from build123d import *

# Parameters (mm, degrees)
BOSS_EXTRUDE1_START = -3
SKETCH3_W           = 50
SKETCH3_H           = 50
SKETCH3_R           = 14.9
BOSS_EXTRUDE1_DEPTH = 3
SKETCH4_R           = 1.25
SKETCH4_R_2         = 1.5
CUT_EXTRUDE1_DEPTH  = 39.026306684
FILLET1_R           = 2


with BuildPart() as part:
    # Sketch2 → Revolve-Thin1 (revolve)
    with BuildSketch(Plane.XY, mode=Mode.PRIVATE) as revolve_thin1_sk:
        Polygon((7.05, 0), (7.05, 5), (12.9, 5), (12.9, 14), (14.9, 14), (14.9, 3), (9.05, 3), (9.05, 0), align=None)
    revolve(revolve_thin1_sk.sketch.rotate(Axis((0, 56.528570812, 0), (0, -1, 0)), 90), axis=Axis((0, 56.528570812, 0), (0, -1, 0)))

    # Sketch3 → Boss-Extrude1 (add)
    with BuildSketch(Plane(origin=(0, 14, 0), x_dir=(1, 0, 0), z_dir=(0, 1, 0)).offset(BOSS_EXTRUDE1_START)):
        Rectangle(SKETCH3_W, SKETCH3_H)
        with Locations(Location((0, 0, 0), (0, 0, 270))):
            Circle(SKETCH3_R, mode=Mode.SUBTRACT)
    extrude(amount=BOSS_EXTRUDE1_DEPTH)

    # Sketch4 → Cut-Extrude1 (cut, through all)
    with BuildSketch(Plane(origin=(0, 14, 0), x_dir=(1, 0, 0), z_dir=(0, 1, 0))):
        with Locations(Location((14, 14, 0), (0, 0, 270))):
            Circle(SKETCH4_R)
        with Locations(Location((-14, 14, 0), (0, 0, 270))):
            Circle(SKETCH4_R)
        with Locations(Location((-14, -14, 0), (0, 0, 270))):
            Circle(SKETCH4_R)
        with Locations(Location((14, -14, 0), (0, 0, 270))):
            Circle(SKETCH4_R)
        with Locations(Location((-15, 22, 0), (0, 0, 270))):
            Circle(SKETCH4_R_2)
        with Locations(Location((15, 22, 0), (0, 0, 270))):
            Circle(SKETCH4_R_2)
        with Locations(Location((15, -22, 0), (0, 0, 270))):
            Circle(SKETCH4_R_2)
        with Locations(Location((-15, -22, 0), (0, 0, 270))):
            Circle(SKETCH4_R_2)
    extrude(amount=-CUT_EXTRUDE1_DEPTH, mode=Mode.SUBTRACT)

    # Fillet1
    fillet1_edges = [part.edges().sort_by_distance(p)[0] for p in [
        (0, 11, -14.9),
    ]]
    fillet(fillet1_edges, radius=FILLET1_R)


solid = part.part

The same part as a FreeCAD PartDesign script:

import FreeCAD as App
import Part
import Sketcher
from FreeCAD import Vector
Q = App.Units.Quantity


def edges_at(feature, points):
    """Names of the edges that pass closest to the given points."""
    edges = feature.Shape.Edges
    near = lambda p: min(range(len(edges)), key=lambda i: edges[i].distToShape(Part.Vertex(*p))[0])
    return sorted({f"Edge{near(p) + 1}" for p in points})

doc = App.newDocument("Part")
params = doc.addObject("Spreadsheet::Sheet", "Params")
for row, (alias, value) in enumerate([
    ("sketch1_width", "2 mm"),
    ("sketch1_height", "5 mm"),
    ("sketch1_height2", "3 mm"),
    ("sketch1_height3", "11 mm"),
    ("sketch1_width2", "5.85 mm"),
    ("revolution_angle", "360 deg"),
    ("sketch2_diameter", "29.8 mm"),
    ("sketch2_width", "50 mm"),
    ("pad1_length", "3 mm"),
    ("sketch3_diameter", "3 mm"),
    ("sketch3_diameter2", "2.5 mm"),
    ("fillet_radius", "2 mm"),
], start=1):
    params.set(f"A{row}", alias)
    params.set(f"B{row}", "=" + value)
    params.setAlias(f"B{row}", alias)

body = doc.addObject("PartDesign::Body", "Body")

sketch1 = body.newObject("Sketcher::SketchObject", "Sketch")
sketch1.AttachmentSupport = (doc.getObject("XY_Plane"), [""])
sketch1.MapMode = "FlatFace"
sketch1.addGeometry([
    Part.LineSegment(Vector(7, 5, 0), Vector(7, 0, 0)),
    Part.LineSegment(Vector(7, 0, 0), Vector(9.1, 0, 0)),
    Part.LineSegment(Vector(9.1, 0, 0), Vector(9.1, 3, 0)),
    Part.LineSegment(Vector(9.1, 3, 0), Vector(14.9, 3, 0)),
    Part.LineSegment(Vector(14.9, 3, 0), Vector(14.9, 14, 0)),
    Part.LineSegment(Vector(14.9, 14, 0), Vector(12.9, 14, 0)),
    Part.LineSegment(Vector(12.9, 14, 0), Vector(12.9, 5, 0)),
    Part.LineSegment(Vector(12.9, 5, 0), Vector(7, 5, 0)),
], False)
sketch1.addConstraint([
    Sketcher.Constraint("Coincident", 0, 2, 1, 1),
    Sketcher.Constraint("Coincident", 1, 2, 2, 1),
    Sketcher.Constraint("Coincident", 2, 2, 3, 1),
    Sketcher.Constraint("Coincident", 3, 2, 4, 1),
    Sketcher.Constraint("Coincident", 4, 2, 5, 1),
    Sketcher.Constraint("Coincident", 5, 2, 6, 1),
    Sketcher.Constraint("Coincident", 6, 2, 7, 1),
    Sketcher.Constraint("Coincident", 7, 2, 0, 1),
    Sketcher.Constraint("Vertical", 0),
    Sketcher.Constraint("Horizontal", 1),
    Sketcher.Constraint("Vertical", 2),
    Sketcher.Constraint("Horizontal", 3),
    Sketcher.Constraint("Vertical", 4),
    Sketcher.Constraint("Horizontal", 5),
    Sketcher.Constraint("Vertical", 6),
    Sketcher.Constraint("Horizontal", 7),
    Sketcher.Constraint("PointOnObject", 0, 2, -1),
    Sketcher.Constraint("Equal", 1, 5),
    Sketcher.Constraint("DistanceX", 1, 1, 1, 2, Q("2 mm")),
    Sketcher.Constraint("DistanceY", 0, 2, 0, 1, Q("5 mm")),
    Sketcher.Constraint("DistanceY", 2, 1, 2, 2, Q("3 mm")),
    Sketcher.Constraint("DistanceY", 4, 1, 4, 2, Q("11 mm")),
    Sketcher.Constraint("DistanceX", 3, 1, 3, 2, Q("5.85 mm")),
    Sketcher.Constraint("DistanceX", -1, 1, 3, 2, Q("14.9 mm")),
])
sketch1.setExpression("Constraints[18]", "Params.sketch1_width")
sketch1.setExpression("Constraints[19]", "Params.sketch1_height")
sketch1.setExpression("Constraints[20]", "Params.sketch1_height2")
sketch1.setExpression("Constraints[21]", "Params.sketch1_height3")
sketch1.setExpression("Constraints[22]", "Params.sketch1_width2")
revolution = body.newObject("PartDesign::Revolution", "Revolution")
revolution.Profile = sketch1
revolution.ReferenceAxis = (sketch1, ["V_Axis"])
revolution.setExpression("Angle", "Params.revolution_angle")

sketch2 = body.newObject("Sketcher::SketchObject", "Sketch001")
sketch2.AttachmentSupport = (doc.getObject("XZ_Plane"), [""])
sketch2.MapMode = "FlatFace"
sketch2.AttachmentOffset = App.Placement(Vector(0, 0, -11), App.Rotation())
sketch2.addGeometry([
    Part.LineSegment(Vector(-25, -25, 0), Vector(-25, 25, 0)),
    Part.LineSegment(Vector(-25, 25, 0), Vector(25, 25, 0)),
    Part.LineSegment(Vector(25, 25, 0), Vector(25, -25, 0)),
    Part.LineSegment(Vector(25, -25, 0), Vector(-25, -25, 0)),
    Part.Circle(Vector(0, 0, 0), Vector(0, 0, 1), 15),
], False)
sketch2.addConstraint([
    Sketcher.Constraint("Coincident", 0, 2, 1, 1),
    Sketcher.Constraint("Coincident", 1, 2, 2, 1),
    Sketcher.Constraint("Coincident", 2, 2, 3, 1),
    Sketcher.Constraint("Coincident", 3, 2, 0, 1),
    Sketcher.Constraint("Vertical", 0),
    Sketcher.Constraint("Horizontal", 1),
    Sketcher.Constraint("Vertical", 2),
    Sketcher.Constraint("Horizontal", 3),
    Sketcher.Constraint("Coincident", 4, 3, -1, 1),
    Sketcher.Constraint("Symmetric", 0, 2, 2, 2, -1, 1),
    Sketcher.Constraint("Equal", 3, 0),
    Sketcher.Constraint("Diameter", 4, Q("29.8 mm")),
    Sketcher.Constraint("DistanceX", 1, 1, 1, 2, Q("50 mm")),
])
sketch2.setExpression("Constraints[11]", "Params.sketch2_diameter")
sketch2.setExpression("Constraints[12]", "Params.sketch2_width")
pad1 = body.newObject("PartDesign::Pad", "Pad")
pad1.Profile = sketch2
pad1.setExpression("Length", "Params.pad1_length")
pad1.Reversed = True

sketch3 = body.newObject("Sketcher::SketchObject", "Sketch002")
sketch3.AttachmentSupport = (doc.getObject("XZ_Plane"), [""])
sketch3.MapMode = "FlatFace"
sketch3.AttachmentOffset = App.Placement(Vector(0, 0, -14), App.Rotation())
sketch3.addGeometry([
    Part.Circle(Vector(14, -14, 0), Vector(0, 0, 1), 1.2),
    Part.Circle(Vector(-14, -14, 0), Vector(0, 0, 1), 1.2),
    Part.Circle(Vector(-14, 14, 0), Vector(0, 0, 1), 1.2),
    Part.Circle(Vector(14, 14, 0), Vector(0, 0, 1), 1.2),
    Part.Circle(Vector(-15, -22, 0), Vector(0, 0, 1), 1.5),
    Part.Circle(Vector(15, -22, 0), Vector(0, 0, 1), 1.5),
    Part.Circle(Vector(15, 22, 0), Vector(0, 0, 1), 1.5),
    Part.Circle(Vector(-15, 22, 0), Vector(0, 0, 1), 1.5),
], False)
sketch3.addConstraint([
    Sketcher.Constraint("Equal", 0, 1),
    Sketcher.Constraint("Equal", 1, 2),
    Sketcher.Constraint("Equal", 2, 3),
    Sketcher.Constraint("Equal", 4, 5),
    Sketcher.Constraint("Equal", 5, 6),
    Sketcher.Constraint("Equal", 6, 7),
    Sketcher.Constraint("Symmetric", 0, 3, 2, 3, -1, 1),
    Sketcher.Constraint("Symmetric", 1, 3, 3, 3, -1, 1),
    Sketcher.Constraint("Symmetric", 4, 3, 6, 3, -1, 1),
    Sketcher.Constraint("Symmetric", 5, 3, 7, 3, -1, 1),
    Sketcher.Constraint("Symmetric", 0, 3, 1, 3, -2),
    Sketcher.Constraint("Symmetric", 4, 3, 5, 3, -2),
    Sketcher.Constraint("Diameter", 4, Q("3 mm")),
    Sketcher.Constraint("Diameter", 0, Q("2.5 mm")),
    Sketcher.Constraint("DistanceX", -1, 1, 0, 3, Q("14 mm")),
    Sketcher.Constraint("DistanceY", 0, 3, -1, 1, Q("14 mm")),
    Sketcher.Constraint("DistanceX", 4, 3, -1, 1, Q("15 mm")),
    Sketcher.Constraint("DistanceY", 4, 3, -1, 1, Q("22 mm")),
])
sketch3.setExpression("Constraints[12]", "Params.sketch3_diameter")
sketch3.setExpression("Constraints[13]", "Params.sketch3_diameter2")
pocket1 = body.newObject("PartDesign::Pocket", "Pocket")
pocket1.Profile = sketch3
pocket1.Type = "ThroughAll"
pocket1.Reversed = True
doc.recompute()

fillet = body.newObject("PartDesign::Fillet", "Fillet")
fillet.Base = (pocket1, edges_at(pocket1, [(0, 11, -14.9)]))
fillet.setExpression("Radius", "Params.fillet_radius")

doc.recompute()
